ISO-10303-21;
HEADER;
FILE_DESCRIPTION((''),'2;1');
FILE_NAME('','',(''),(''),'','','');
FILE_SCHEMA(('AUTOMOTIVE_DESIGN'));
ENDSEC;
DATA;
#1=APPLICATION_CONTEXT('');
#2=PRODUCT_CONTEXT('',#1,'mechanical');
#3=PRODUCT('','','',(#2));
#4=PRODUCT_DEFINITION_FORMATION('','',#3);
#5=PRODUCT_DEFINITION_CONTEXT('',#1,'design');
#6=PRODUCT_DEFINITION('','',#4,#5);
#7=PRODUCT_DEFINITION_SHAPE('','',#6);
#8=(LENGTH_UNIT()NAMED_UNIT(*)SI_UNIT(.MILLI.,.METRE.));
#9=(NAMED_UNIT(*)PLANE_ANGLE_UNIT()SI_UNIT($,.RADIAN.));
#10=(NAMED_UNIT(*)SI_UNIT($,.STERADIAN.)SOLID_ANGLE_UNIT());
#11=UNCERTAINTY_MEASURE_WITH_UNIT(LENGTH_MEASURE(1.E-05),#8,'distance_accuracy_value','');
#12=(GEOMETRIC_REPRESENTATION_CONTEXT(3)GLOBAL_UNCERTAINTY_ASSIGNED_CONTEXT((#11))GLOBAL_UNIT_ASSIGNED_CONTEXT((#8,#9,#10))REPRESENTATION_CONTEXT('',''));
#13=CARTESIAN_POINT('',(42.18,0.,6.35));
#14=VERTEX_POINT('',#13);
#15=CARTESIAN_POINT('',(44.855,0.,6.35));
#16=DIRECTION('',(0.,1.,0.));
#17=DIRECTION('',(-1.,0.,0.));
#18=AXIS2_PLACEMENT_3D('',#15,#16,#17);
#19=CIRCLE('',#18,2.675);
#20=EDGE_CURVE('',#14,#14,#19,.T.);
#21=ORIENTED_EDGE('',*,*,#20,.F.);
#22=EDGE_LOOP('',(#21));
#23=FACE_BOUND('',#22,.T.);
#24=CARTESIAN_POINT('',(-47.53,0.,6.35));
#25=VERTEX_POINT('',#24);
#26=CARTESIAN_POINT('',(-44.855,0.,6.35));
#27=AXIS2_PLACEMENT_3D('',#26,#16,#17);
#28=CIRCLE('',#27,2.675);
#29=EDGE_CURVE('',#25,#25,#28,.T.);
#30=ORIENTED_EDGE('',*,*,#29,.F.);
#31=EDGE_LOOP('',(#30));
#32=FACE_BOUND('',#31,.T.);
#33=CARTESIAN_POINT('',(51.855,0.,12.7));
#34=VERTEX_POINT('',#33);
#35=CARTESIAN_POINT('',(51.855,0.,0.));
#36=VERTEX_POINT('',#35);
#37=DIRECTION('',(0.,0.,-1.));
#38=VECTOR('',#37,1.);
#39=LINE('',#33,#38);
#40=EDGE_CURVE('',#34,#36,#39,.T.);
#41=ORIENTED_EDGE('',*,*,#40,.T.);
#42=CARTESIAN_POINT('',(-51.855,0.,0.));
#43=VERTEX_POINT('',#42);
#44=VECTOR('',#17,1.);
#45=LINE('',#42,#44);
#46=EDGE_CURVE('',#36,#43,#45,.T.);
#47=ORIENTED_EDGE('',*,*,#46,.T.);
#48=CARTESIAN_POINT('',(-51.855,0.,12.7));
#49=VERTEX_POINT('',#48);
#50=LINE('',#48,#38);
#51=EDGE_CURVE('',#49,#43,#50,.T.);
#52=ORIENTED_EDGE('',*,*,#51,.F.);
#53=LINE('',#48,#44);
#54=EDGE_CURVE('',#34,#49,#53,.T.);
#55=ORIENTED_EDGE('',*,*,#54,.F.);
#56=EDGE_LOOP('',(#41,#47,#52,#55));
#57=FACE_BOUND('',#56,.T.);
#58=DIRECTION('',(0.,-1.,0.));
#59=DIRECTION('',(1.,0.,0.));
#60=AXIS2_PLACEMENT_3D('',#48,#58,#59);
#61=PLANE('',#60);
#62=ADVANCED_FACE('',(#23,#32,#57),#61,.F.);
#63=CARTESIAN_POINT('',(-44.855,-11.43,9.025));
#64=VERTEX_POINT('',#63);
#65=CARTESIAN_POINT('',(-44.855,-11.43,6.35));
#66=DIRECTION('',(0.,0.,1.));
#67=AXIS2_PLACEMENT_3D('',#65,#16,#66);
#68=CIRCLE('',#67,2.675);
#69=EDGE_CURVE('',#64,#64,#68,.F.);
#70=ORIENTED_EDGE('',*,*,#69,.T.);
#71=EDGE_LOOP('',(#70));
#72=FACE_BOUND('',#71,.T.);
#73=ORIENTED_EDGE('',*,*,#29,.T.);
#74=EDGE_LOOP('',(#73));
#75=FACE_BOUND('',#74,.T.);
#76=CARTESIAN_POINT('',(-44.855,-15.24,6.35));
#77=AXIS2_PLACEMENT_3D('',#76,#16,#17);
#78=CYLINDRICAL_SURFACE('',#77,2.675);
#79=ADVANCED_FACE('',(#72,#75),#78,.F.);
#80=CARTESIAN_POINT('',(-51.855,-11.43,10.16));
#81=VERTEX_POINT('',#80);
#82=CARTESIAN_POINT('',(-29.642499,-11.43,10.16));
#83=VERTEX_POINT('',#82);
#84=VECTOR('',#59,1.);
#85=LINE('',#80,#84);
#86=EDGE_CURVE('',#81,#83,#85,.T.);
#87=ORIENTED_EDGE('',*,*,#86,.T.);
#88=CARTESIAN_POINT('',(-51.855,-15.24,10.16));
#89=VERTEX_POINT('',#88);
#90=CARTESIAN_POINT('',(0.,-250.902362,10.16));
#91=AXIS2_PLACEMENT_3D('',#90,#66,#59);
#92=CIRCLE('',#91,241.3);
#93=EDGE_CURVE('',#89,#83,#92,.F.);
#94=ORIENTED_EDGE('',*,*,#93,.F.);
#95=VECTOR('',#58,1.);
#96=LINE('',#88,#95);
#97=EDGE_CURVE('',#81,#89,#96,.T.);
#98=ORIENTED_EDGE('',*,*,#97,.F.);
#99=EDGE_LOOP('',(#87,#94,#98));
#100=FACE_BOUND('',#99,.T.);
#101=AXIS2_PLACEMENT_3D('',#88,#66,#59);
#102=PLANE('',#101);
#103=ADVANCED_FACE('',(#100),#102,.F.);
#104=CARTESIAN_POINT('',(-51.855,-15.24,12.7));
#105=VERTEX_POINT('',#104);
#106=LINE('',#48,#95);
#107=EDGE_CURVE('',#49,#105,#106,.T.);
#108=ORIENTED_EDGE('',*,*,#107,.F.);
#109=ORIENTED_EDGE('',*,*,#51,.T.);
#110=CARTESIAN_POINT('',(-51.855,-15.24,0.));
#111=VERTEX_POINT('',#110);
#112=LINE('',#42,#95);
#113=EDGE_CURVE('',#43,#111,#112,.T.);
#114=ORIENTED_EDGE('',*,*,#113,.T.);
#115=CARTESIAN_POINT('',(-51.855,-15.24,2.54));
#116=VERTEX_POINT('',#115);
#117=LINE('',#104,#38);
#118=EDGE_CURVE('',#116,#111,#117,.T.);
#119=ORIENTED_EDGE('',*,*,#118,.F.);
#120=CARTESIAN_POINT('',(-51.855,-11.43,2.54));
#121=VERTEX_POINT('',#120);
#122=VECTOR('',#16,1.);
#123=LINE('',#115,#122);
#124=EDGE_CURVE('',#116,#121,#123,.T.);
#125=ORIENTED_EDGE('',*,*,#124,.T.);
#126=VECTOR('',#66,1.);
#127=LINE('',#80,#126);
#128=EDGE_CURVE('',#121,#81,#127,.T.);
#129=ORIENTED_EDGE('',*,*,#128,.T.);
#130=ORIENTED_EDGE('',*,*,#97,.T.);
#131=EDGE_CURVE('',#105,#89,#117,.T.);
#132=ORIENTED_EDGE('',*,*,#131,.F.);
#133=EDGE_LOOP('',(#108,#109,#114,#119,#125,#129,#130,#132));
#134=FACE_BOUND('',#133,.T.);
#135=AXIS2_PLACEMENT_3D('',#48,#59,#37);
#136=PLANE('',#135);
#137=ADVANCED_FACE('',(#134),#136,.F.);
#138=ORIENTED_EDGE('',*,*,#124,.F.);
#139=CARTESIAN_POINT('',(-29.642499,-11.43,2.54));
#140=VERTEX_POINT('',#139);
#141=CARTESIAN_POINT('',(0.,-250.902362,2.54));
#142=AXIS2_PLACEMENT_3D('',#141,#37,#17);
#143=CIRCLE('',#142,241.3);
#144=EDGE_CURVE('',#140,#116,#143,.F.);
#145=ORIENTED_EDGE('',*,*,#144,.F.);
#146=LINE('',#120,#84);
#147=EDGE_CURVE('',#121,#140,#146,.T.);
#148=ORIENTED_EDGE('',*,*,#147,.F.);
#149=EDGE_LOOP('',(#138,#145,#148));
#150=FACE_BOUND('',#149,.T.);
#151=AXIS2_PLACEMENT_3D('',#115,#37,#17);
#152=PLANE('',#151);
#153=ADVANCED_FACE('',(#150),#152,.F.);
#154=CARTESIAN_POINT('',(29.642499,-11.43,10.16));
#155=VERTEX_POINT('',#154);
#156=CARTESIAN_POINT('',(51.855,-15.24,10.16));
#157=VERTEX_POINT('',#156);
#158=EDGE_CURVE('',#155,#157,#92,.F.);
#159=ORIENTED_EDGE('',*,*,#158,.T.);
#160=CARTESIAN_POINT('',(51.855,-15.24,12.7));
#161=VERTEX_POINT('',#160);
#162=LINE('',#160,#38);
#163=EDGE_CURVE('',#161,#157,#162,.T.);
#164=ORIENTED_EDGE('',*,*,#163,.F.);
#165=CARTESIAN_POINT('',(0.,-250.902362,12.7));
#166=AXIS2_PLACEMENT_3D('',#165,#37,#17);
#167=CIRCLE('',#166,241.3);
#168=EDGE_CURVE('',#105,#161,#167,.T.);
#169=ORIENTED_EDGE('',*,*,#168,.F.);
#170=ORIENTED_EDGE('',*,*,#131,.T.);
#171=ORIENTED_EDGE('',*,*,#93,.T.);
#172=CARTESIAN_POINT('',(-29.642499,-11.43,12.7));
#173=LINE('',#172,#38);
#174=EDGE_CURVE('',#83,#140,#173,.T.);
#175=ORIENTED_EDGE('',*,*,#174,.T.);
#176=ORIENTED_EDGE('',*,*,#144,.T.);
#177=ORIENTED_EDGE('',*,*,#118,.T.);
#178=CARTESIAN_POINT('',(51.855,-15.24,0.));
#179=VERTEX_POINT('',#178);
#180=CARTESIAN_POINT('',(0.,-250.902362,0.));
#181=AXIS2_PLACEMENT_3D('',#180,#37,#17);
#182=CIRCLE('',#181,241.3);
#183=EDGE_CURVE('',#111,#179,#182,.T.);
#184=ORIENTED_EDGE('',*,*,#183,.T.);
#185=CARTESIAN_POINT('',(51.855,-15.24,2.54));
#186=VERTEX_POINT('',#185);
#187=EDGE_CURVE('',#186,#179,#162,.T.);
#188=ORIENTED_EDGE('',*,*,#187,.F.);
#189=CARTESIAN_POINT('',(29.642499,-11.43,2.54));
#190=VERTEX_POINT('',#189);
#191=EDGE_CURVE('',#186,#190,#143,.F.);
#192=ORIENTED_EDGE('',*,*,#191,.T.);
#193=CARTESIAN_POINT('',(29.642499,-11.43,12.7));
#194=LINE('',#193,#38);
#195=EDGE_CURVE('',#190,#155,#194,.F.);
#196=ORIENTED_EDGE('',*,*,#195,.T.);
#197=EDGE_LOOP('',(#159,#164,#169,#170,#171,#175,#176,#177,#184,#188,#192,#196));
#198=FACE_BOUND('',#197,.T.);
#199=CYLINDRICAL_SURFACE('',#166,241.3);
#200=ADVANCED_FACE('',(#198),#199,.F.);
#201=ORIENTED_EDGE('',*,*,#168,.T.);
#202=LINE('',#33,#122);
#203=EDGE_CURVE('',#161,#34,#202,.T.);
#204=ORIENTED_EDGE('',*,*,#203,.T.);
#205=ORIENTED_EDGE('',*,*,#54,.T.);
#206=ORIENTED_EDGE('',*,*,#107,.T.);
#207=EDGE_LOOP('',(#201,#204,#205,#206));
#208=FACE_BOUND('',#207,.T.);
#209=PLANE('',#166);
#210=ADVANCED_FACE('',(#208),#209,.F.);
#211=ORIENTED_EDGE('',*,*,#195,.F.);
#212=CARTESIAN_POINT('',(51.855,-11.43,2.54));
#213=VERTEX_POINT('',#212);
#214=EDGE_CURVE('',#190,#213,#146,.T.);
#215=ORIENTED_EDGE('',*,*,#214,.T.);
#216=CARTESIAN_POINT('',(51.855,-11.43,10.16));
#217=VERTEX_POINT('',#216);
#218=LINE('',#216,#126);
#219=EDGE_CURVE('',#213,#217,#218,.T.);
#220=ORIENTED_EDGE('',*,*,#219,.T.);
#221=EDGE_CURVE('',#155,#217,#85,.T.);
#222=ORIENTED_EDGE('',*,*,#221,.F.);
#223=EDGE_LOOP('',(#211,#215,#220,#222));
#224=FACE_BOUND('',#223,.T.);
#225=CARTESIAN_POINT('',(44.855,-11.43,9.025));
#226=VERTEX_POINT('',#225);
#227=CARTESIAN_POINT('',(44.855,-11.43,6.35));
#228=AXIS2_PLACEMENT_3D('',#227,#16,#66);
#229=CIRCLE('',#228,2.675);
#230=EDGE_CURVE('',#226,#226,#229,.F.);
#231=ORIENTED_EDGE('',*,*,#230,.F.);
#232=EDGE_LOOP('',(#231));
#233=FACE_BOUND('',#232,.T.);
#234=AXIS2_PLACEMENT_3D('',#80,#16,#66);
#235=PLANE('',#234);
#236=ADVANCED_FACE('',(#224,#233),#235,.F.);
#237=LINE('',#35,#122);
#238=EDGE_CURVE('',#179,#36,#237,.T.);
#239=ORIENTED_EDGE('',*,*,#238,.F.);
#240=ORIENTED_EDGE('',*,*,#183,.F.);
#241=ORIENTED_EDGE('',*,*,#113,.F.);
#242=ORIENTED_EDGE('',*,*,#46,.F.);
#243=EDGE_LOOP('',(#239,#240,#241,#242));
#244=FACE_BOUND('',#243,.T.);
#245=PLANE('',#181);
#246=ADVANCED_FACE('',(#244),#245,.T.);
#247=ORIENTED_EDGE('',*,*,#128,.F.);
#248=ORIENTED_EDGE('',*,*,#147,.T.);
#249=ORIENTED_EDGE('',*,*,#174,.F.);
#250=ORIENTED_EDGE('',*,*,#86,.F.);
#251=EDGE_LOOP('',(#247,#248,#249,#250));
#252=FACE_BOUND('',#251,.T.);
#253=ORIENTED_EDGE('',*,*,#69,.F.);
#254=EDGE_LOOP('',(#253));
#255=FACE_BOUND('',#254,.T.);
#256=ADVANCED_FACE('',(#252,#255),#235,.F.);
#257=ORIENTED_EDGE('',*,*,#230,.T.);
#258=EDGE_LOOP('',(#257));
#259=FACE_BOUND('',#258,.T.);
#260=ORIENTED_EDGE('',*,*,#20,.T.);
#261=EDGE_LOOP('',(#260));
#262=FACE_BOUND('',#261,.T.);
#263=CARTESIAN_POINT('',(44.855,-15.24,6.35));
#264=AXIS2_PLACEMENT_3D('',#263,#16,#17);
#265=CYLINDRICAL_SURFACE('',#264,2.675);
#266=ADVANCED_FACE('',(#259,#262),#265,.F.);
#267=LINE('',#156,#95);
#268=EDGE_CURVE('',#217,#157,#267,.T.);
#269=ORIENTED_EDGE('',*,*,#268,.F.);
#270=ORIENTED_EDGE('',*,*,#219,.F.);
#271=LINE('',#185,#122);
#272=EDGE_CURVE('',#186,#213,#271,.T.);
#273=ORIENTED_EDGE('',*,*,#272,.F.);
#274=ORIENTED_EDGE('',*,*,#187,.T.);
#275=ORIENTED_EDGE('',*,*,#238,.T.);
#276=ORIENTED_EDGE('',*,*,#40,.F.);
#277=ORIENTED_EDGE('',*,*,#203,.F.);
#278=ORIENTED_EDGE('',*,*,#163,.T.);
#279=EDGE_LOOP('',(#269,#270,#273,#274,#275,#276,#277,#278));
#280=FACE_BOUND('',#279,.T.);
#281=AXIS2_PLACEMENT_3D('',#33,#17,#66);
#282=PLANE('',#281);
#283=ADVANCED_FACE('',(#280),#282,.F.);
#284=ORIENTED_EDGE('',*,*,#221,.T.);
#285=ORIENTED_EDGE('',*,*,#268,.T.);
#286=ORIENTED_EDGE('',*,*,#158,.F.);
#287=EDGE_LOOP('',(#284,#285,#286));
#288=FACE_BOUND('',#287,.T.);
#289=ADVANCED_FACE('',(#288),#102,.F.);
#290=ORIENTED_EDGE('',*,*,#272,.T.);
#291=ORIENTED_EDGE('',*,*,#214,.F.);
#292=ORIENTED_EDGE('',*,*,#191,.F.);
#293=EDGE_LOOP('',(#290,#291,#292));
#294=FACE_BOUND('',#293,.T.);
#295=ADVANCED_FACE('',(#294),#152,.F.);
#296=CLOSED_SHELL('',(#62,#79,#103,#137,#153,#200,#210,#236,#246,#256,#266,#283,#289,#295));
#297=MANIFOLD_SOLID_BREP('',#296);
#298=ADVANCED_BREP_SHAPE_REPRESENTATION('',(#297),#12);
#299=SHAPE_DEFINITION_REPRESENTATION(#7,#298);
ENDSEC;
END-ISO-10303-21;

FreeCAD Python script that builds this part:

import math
import FreeCAD as App
import Part
import Sketcher
from FreeCAD import Vector
Q = App.Units.Quantity

doc = App.newDocument("Part")
params = doc.addObject("Spreadsheet::Sheet", "Params")
for row, (alias, value) in enumerate([
    ("sketch1_radius", "9.5 in"),
    ("sketch1_height", "0.6 in"),
    ("pad1_length", "0.5 in"),
    ("sketch3_height", "0.3 in"),
    ("sketch3_width", "0.15 in"),
], start=1):
    params.set(f"A{row}", alias)
    params.set(f"B{row}", "=" + value)
    params.setAlias(f"B{row}", alias)

body = doc.addObject("PartDesign::Body", "Body")

sketch1 = body.newObject("Sketcher::SketchObject", "Sketch")
sketch1.AttachmentSupport = (doc.getObject("XY_Plane"), [""])
sketch1.MapMode = "FlatFace"
sketch1.addGeometry([
    Part.LineSegment(Vector(52, 0, 0), Vector(-52, 0, 0)),
    Part.LineSegment(Vector(-52, 0, 0), Vector(-52, -15, 0)),
    Part.ArcOfCircle(Part.Circle(Vector(0, -251, 0), Vector(0, 0, 1), 241), math.radians(78), math.radians(102)),
    Part.LineSegment(Vector(52, -15, 0), Vector(52, 0, 0)),
], False)
sketch1.addConstraint([
    Sketcher.Constraint("Coincident", 0, 2, 1, 1),
    Sketcher.Constraint("Coincident", 1, 2, 2, 2),
    Sketcher.Constraint("Coincident", 2, 1, 3, 1),
    Sketcher.Constraint("Coincident", 3, 2, 0, 1),
    Sketcher.Constraint("Horizontal", 0),
    Sketcher.Constraint("Vertical", 1),
    Sketcher.Constraint("Vertical", 3),
    Sketcher.Constraint("Symmetric", 0, 2, 3, 2, -1, 1),
    Sketcher.Constraint("PointOnObject", 2, 3, -2),
    Sketcher.Constraint("Radius", 2, Q("9.5 in")),
    Sketcher.Constraint("DistanceY", 1, 2, 1, 1, Q("0.6 in")),
    Sketcher.Constraint("DistanceX", 0, 2, 0, 1, 103.71),
])
sketch1.setExpression("Constraints[9]", "Params.sketch1_radius")
sketch1.setExpression("Constraints[10]", "Params.sketch1_height")
pad1 = body.newObject("PartDesign::Pad", "Pad")
pad1.Profile = sketch1
pad1.setExpression("Length", "Params.pad1_length")

sketch2 = body.newObject("Sketcher::SketchObject", "Sketch001")
sketch2.AttachmentSupport = (doc.getObject("XZ_Plane"), [""])
sketch2.MapMode = "FlatFace"
sketch2.addGeometry([
    Part.Circle(Vector(-44.9, 6.3, 0), Vector(0, 0, 1), 2.7),
    Part.Circle(Vector(44.9, 6.3, 0), Vector(0, 0, 1), 2.7),
], False)
sketch2.addConstraint([
    Sketcher.Constraint("Equal", 0, 1),
    Sketcher.Constraint("Symmetric", 0, 3, 1, 3, -2),
    Sketcher.Constraint("Diameter", 0, 5.35),
    Sketcher.Constraint("DistanceY", -1, 1, 0, 3, Q("0.25 in")),
    Sketcher.Constraint("DistanceX", 0, 3, -1, 1, 44.855),
])
pocket1 = body.newObject("PartDesign::Pocket", "Pocket")
pocket1.Profile = sketch2
pocket1.Type = "ThroughAll"
pocket1.Reversed = True

sketch3 = body.newObject("Sketcher::SketchObject", "Sketch002")
sketch3.AttachmentSupport = (doc.getObject("YZ_Plane"), [""])
sketch3.MapMode = "FlatFace"
sketch3.AttachmentOffset = App.Placement(Vector(0, 0, 51.855), App.Rotation())
sketch3.addGeometry([
    Part.LineSegment(Vector(-11.4, 10.2, 0), Vector(-15.2, 10.2, 0)),
    Part.LineSegment(Vector(-15.2, 10.2, 0), Vector(-15.2, 2.5, 0)),
    Part.LineSegment(Vector(-15.2, 2.5, 0), Vector(-11.4, 2.5, 0)),
    Part.LineSegment(Vector(-11.4, 2.5, 0), Vector(-11.4, 10.2, 0)),
], False)
sketch3.addConstraint([
    Sketcher.Constraint("Coincident", 0, 2, 1, 1),
    Sketcher.Constraint("Coincident", 1, 2, 2, 1),
    Sketcher.Constraint("Coincident", 2, 2, 3, 1),
    Sketcher.Constraint("Coincident", 3, 2, 0, 1),
    Sketcher.Constraint("Horizontal", 0),
    Sketcher.Constraint("Vertical", 1),
    Sketcher.Constraint("Horizontal", 2),
    Sketcher.Constraint("Vertical", 3),
    Sketcher.Constraint("DistanceY", 1, 2, 1, 1, Q("0.3 in")),
    Sketcher.Constraint("DistanceX", 0, 2, 0, 1, Q("0.15 in")),
    Sketcher.Constraint("DistanceX", 0, 2, -1, 1, Q("0.6 in")),
    Sketcher.Constraint("DistanceY", -1, 1, 0, 2, Q("0.4 in")),
])
sketch3.setExpression("Constraints[8]", "Params.sketch3_height")
sketch3.setExpression("Constraints[9]", "Params.sketch3_width")
pocket2 = body.newObject("PartDesign::Pocket", "Pocket001")
pocket2.Profile = sketch3
pocket2.Type = "ThroughAll"

doc.recompute()
